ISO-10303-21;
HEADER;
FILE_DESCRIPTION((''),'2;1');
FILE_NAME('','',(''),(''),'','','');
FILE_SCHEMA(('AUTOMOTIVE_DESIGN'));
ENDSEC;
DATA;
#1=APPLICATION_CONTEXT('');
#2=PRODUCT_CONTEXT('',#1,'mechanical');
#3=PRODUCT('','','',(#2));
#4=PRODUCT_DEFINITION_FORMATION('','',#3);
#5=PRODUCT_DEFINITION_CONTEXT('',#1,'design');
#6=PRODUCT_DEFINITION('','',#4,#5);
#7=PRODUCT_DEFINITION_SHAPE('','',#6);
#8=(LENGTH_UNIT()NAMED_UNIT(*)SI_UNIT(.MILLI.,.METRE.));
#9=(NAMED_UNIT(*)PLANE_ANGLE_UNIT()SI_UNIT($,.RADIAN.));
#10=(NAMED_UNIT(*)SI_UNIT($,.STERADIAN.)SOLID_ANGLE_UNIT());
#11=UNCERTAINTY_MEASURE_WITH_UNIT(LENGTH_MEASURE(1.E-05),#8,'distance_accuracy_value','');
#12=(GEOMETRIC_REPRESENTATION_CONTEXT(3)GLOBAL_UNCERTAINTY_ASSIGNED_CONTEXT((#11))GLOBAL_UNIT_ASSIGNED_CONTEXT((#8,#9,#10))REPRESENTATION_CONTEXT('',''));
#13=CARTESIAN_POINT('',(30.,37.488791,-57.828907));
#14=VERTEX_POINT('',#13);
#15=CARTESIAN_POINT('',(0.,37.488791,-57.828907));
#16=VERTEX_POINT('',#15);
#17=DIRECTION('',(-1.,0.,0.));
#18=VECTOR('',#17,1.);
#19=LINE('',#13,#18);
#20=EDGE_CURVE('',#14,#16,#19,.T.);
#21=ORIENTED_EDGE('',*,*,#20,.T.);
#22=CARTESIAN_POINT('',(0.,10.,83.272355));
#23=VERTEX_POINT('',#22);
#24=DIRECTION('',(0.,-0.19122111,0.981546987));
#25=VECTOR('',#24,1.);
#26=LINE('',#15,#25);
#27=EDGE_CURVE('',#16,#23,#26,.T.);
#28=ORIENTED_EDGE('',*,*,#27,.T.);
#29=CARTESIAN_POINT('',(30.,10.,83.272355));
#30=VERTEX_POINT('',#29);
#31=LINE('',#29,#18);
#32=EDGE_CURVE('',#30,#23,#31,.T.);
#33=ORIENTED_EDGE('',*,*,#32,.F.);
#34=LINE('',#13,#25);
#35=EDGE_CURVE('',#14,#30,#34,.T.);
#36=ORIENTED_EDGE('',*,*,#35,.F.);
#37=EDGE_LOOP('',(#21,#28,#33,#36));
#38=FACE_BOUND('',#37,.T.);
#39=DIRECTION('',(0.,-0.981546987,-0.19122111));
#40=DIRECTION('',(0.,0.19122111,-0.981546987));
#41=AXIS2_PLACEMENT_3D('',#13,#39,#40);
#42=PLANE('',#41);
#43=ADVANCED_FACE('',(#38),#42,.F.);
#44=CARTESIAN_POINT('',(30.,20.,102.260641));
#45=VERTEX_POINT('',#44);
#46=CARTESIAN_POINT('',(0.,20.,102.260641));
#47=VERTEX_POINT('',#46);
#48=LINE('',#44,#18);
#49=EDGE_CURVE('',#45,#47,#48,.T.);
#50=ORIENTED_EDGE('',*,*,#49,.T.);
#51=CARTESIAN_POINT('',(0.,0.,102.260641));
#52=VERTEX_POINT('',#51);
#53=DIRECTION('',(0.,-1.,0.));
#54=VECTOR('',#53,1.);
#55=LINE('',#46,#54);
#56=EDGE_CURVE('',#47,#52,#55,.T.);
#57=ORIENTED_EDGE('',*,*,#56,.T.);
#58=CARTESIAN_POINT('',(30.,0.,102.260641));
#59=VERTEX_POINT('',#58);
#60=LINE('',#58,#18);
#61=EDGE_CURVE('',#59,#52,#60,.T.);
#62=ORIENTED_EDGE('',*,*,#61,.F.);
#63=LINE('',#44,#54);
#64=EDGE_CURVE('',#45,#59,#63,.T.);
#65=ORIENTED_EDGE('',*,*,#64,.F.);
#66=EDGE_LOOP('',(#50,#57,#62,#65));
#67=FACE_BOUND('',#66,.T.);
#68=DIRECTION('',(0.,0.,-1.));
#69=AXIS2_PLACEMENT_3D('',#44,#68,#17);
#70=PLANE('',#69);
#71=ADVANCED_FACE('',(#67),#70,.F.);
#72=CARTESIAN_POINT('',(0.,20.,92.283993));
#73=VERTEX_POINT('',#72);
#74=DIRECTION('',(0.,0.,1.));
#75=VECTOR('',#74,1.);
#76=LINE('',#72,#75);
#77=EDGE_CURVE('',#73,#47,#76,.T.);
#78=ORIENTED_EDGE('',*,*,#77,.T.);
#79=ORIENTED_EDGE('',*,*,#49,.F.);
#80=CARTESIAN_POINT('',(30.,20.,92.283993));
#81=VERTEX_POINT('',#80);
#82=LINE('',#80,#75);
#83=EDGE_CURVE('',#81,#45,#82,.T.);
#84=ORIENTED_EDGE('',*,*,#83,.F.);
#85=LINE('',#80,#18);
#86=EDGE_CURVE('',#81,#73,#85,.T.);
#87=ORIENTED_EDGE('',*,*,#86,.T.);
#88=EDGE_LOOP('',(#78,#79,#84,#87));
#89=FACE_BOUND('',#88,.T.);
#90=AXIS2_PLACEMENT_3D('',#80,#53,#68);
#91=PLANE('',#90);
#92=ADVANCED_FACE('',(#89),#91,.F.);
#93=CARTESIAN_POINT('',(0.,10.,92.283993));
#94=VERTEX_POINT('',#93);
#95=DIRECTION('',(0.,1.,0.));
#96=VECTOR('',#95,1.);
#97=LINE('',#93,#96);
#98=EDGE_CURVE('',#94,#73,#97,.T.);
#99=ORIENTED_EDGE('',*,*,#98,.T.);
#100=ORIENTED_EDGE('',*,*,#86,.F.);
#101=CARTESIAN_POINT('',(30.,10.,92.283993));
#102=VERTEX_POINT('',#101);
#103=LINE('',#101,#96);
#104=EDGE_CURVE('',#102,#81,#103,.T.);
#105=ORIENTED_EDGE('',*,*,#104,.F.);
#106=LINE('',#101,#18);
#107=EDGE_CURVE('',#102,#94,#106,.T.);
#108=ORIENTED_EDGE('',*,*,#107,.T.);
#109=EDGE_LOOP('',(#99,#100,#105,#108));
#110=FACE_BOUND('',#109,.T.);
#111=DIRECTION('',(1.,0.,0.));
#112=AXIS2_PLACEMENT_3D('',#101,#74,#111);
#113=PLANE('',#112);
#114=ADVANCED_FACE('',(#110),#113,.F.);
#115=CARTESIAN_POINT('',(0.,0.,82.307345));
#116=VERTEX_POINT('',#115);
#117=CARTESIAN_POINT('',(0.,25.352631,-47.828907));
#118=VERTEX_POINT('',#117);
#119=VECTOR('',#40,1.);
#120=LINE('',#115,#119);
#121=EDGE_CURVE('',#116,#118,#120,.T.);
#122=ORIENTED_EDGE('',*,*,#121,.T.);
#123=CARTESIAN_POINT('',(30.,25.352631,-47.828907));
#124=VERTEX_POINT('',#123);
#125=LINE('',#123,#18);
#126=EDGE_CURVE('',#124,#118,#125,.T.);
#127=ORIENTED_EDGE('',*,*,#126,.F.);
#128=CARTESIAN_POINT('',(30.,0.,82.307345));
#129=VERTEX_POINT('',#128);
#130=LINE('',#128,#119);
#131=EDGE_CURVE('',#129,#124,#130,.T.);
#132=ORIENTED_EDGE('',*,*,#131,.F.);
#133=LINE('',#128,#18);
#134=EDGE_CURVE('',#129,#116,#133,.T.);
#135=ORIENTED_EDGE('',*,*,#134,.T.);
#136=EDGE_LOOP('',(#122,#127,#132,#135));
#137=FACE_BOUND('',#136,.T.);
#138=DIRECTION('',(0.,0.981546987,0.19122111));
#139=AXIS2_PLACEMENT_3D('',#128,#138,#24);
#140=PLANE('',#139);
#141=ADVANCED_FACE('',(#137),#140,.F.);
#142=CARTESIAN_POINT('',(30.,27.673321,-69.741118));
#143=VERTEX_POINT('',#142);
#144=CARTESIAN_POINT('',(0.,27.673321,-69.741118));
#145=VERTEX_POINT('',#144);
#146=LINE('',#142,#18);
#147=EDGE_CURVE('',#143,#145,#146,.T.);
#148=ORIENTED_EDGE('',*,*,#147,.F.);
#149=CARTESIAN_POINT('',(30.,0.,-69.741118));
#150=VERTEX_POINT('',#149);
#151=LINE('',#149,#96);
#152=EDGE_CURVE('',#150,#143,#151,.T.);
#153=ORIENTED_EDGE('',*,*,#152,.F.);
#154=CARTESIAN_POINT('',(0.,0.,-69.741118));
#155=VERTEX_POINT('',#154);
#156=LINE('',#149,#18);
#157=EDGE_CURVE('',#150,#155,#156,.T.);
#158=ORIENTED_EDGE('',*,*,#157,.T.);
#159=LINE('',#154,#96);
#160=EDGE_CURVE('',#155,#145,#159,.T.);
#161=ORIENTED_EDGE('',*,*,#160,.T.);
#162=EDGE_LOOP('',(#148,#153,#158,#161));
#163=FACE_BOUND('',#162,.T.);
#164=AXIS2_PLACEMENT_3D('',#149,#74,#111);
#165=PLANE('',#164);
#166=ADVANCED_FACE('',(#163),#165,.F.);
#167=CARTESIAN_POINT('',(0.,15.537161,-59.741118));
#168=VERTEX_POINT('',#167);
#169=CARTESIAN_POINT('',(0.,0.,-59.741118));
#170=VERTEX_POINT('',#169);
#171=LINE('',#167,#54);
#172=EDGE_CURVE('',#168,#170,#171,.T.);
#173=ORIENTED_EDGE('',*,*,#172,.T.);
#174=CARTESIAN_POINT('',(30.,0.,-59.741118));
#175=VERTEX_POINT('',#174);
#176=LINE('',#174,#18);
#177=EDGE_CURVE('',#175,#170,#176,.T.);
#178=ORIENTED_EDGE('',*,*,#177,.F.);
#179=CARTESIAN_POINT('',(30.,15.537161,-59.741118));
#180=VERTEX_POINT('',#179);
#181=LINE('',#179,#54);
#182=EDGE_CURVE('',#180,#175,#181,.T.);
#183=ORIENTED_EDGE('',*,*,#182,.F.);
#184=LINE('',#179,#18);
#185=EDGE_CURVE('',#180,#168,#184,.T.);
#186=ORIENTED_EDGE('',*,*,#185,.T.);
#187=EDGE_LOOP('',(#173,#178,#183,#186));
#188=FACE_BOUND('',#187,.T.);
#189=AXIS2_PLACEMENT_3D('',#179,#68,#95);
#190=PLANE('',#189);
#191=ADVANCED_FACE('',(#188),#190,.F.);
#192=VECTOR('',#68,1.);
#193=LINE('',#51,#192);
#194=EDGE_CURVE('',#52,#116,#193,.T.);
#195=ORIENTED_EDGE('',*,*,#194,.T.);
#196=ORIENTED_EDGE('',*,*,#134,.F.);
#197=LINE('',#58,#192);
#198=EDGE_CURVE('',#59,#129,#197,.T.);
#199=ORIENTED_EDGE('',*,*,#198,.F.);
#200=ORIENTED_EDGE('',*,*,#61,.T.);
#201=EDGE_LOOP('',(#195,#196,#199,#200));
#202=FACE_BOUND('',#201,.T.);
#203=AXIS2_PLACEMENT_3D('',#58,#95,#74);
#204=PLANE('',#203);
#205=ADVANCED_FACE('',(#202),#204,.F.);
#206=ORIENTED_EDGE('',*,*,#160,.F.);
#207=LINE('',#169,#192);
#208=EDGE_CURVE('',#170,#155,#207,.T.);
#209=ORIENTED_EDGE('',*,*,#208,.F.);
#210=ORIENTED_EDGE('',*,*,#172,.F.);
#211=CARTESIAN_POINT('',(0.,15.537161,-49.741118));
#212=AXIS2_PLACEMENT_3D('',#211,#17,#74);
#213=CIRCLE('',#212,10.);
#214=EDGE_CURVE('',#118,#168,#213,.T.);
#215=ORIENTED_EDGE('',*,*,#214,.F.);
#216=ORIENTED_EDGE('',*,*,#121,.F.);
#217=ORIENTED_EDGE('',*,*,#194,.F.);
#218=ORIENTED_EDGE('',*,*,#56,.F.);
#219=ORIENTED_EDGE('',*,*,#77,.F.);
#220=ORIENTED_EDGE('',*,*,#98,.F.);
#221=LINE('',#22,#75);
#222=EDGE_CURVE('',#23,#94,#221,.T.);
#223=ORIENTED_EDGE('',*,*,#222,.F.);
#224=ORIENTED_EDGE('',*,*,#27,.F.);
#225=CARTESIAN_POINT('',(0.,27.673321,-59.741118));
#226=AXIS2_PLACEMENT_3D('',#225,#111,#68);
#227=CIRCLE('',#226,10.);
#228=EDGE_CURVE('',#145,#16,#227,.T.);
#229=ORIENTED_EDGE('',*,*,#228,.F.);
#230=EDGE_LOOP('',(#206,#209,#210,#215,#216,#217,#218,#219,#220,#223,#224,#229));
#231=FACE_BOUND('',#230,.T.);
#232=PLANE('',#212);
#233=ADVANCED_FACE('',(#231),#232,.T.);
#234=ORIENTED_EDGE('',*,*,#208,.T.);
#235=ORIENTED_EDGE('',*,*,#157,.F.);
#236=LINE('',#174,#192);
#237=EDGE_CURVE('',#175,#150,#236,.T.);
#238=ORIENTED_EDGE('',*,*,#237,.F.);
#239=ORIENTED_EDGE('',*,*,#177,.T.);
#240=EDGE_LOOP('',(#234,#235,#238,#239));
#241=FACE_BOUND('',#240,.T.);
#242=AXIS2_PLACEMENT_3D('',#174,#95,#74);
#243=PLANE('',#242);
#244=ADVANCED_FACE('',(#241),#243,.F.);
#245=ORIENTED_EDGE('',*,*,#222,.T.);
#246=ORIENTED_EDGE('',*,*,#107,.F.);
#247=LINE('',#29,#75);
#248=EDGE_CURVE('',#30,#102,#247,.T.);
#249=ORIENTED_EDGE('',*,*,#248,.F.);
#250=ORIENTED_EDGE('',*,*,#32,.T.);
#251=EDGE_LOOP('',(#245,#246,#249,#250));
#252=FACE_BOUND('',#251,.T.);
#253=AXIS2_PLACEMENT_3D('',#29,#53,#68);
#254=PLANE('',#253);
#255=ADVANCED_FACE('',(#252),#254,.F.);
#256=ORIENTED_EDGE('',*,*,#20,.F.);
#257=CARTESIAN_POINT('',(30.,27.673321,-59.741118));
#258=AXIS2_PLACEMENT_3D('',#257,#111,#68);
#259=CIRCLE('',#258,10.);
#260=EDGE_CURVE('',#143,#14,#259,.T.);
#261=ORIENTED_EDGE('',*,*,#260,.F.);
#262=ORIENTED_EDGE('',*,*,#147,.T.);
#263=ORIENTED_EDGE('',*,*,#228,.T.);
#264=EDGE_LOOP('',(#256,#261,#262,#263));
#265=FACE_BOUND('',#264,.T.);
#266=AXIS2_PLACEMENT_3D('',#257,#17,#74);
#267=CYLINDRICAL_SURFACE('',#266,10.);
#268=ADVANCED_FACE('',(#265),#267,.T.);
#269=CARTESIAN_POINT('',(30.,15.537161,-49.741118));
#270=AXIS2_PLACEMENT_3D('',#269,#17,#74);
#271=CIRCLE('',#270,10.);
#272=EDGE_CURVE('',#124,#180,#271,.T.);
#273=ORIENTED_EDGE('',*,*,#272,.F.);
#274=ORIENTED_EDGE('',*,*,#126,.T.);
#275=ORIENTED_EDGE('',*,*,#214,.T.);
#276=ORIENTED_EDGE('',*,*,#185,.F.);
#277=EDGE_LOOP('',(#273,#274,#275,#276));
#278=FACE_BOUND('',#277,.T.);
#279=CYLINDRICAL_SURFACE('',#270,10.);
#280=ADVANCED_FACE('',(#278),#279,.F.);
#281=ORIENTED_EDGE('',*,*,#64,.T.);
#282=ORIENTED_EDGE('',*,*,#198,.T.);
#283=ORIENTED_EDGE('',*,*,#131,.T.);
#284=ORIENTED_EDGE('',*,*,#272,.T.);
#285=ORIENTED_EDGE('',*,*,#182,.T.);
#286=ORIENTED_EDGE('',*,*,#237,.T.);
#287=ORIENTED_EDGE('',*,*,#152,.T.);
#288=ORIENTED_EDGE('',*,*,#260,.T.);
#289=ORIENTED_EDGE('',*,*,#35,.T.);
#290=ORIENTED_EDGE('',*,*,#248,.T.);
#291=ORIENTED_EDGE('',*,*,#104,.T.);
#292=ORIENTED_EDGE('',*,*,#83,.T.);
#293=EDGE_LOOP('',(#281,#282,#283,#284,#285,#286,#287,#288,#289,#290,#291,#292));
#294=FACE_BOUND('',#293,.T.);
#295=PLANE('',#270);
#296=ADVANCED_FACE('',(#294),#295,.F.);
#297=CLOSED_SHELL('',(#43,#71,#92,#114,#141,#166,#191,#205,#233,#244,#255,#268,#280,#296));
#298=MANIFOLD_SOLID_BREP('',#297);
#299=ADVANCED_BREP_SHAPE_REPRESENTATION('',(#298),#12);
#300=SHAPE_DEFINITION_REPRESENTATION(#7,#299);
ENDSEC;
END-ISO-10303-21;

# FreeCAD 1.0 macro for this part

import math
import FreeCAD as App
import Part
import Sketcher

doc = App.newDocument("Part")
body = doc.addObject("PartDesign::Body", "Body")

# Sketch on YZ plane
sketch1 = body.newObject("Sketcher::SketchObject", "Sketch")
sketch1.AttachmentSupport = (doc.getObject("YZ_Plane"), [""])
sketch1.MapMode = "FlatFace"
sketch1.addGeometry(Part.LineSegment(App.Vector(0, 102, 0), App.Vector(0, 82, 0)), False)
sketch1.addGeometry(Part.LineSegment(App.Vector(0, 82, 0), App.Vector(25, -48, 0)), False)
sketch1.addGeometry(Part.ArcOfCircle(Part.Circle(App.Vector(16, -50, 0), App.Vector(0, 0, 1), 10), math.radians(-90), math.radians(11)), False)
sketch1.addGeometry(Part.LineSegment(App.Vector(16, -60, 0), App.Vector(0, -60, 0)), False)
sketch1.addGeometry(Part.LineSegment(App.Vector(0, -60, 0), App.Vector(0, -70, 0)), False)
sketch1.addGeometry(Part.LineSegment(App.Vector(0, -70, 0), App.Vector(28, -70, 0)), False)
sketch1.addGeometry(Part.ArcOfCircle(Part.Circle(App.Vector(28, -60, 0), App.Vector(0, 0, 1), 10), math.radians(-90), math.radians(11)), False)
sketch1.addGeometry(Part.LineSegment(App.Vector(37, -58, 0), App.Vector(10, 83, 0)), False)
sketch1.addGeometry(Part.LineSegment(App.Vector(10, 83, 0), App.Vector(10, 92, 0)), False)
sketch1.addGeometry(Part.LineSegment(App.Vector(10, 92, 0), App.Vector(20, 92, 0)), False)
sketch1.addGeometry(Part.LineSegment(App.Vector(20, 92, 0), App.Vector(20, 102, 0)), False)
sketch1.addGeometry(Part.LineSegment(App.Vector(20, 102, 0), App.Vector(0, 102, 0)), False)
sketch1.addConstraint(Sketcher.Constraint("Coincident", 0, 2, 1, 1))
sketch1.addConstraint(Sketcher.Constraint("Tangent", 1, 2, 2, 2))
sketch1.addConstraint(Sketcher.Constraint("Tangent", 2, 1, 3, 1))
sketch1.addConstraint(Sketcher.Constraint("Coincident", 3, 2, 4, 1))
sketch1.addConstraint(Sketcher.Constraint("Coincident", 4, 2, 5, 1))
sketch1.addConstraint(Sketcher.Constraint("Tangent", 5, 2, 6, 1))
sketch1.addConstraint(Sketcher.Constraint("Tangent", 6, 2, 7, 1))
sketch1.addConstraint(Sketcher.Constraint("Coincident", 7, 2, 8, 1))
sketch1.addConstraint(Sketcher.Constraint("Coincident", 8, 2, 9, 1))
sketch1.addConstraint(Sketcher.Constraint("Coincident", 9, 2, 10, 1))
sketch1.addConstraint(Sketcher.Constraint("Coincident", 10, 2, 11, 1))
sketch1.addConstraint(Sketcher.Constraint("Coincident", 11, 2, 0, 1))
sketch1.addConstraint(Sketcher.Constraint("Vertical", 0))
sketch1.addConstraint(Sketcher.Constraint("Horizontal", 3))
sketch1.addConstraint(Sketcher.Constraint("Vertical", 4))
sketch1.addConstraint(Sketcher.Constraint("Horizontal", 5))
sketch1.addConstraint(Sketcher.Constraint("Vertical", 8))
sketch1.addConstraint(Sketcher.Constraint("Horizontal", 9))
sketch1.addConstraint(Sketcher.Constraint("Vertical", 10))
sketch1.addConstraint(Sketcher.Constraint("Horizontal", 11))
sketch1.addConstraint(Sketcher.Constraint("Equal", 2, 6))
sketch1.addConstraint(Sketcher.Constraint("PointOnObject", 0, 2, -2))
sketch1.addConstraint(Sketcher.Constraint("PointOnObject", 3, 2, -2))
sketch1.addConstraint(Sketcher.Constraint("Parallel", 1, 7))
sketch1.addConstraint(Sketcher.Constraint("Horizontal", 6, 3, 2, 1))
sketch1.addConstraint(Sketcher.Constraint("Equal", 9, 4))
sketch1.addConstraint(Sketcher.Constraint("Radius", 2, 10.0))
sketch1.addConstraint(Sketcher.Constraint("DistanceX", 11, 2, 11, 1, 20.0))
sketch1.addConstraint(Sketcher.Constraint("DistanceX", 3, 2, 3, 1, 15.537161))
sketch1.addConstraint(Sketcher.Constraint("DistanceX", 5, 1, 5, 2, 27.673321))
sketch1.addConstraint(Sketcher.Constraint("DistanceY", 8, 1, 8, 2, 9.011639))
sketch1.addConstraint(Sketcher.Constraint("DistanceY", 1, 2, 8, 2, 140.1129))
sketch1.addConstraint(Sketcher.Constraint("DistanceY", 0, 2, 0, 1, 19.953296))
sketch1.addConstraint(Sketcher.Constraint("DistanceY", -1, 1, 10, 2, 102.260641))
pad1 = body.newObject("PartDesign::Pad", "Pad")
pad1.Profile = sketch1
pad1.Length = 30

doc.recompute()
